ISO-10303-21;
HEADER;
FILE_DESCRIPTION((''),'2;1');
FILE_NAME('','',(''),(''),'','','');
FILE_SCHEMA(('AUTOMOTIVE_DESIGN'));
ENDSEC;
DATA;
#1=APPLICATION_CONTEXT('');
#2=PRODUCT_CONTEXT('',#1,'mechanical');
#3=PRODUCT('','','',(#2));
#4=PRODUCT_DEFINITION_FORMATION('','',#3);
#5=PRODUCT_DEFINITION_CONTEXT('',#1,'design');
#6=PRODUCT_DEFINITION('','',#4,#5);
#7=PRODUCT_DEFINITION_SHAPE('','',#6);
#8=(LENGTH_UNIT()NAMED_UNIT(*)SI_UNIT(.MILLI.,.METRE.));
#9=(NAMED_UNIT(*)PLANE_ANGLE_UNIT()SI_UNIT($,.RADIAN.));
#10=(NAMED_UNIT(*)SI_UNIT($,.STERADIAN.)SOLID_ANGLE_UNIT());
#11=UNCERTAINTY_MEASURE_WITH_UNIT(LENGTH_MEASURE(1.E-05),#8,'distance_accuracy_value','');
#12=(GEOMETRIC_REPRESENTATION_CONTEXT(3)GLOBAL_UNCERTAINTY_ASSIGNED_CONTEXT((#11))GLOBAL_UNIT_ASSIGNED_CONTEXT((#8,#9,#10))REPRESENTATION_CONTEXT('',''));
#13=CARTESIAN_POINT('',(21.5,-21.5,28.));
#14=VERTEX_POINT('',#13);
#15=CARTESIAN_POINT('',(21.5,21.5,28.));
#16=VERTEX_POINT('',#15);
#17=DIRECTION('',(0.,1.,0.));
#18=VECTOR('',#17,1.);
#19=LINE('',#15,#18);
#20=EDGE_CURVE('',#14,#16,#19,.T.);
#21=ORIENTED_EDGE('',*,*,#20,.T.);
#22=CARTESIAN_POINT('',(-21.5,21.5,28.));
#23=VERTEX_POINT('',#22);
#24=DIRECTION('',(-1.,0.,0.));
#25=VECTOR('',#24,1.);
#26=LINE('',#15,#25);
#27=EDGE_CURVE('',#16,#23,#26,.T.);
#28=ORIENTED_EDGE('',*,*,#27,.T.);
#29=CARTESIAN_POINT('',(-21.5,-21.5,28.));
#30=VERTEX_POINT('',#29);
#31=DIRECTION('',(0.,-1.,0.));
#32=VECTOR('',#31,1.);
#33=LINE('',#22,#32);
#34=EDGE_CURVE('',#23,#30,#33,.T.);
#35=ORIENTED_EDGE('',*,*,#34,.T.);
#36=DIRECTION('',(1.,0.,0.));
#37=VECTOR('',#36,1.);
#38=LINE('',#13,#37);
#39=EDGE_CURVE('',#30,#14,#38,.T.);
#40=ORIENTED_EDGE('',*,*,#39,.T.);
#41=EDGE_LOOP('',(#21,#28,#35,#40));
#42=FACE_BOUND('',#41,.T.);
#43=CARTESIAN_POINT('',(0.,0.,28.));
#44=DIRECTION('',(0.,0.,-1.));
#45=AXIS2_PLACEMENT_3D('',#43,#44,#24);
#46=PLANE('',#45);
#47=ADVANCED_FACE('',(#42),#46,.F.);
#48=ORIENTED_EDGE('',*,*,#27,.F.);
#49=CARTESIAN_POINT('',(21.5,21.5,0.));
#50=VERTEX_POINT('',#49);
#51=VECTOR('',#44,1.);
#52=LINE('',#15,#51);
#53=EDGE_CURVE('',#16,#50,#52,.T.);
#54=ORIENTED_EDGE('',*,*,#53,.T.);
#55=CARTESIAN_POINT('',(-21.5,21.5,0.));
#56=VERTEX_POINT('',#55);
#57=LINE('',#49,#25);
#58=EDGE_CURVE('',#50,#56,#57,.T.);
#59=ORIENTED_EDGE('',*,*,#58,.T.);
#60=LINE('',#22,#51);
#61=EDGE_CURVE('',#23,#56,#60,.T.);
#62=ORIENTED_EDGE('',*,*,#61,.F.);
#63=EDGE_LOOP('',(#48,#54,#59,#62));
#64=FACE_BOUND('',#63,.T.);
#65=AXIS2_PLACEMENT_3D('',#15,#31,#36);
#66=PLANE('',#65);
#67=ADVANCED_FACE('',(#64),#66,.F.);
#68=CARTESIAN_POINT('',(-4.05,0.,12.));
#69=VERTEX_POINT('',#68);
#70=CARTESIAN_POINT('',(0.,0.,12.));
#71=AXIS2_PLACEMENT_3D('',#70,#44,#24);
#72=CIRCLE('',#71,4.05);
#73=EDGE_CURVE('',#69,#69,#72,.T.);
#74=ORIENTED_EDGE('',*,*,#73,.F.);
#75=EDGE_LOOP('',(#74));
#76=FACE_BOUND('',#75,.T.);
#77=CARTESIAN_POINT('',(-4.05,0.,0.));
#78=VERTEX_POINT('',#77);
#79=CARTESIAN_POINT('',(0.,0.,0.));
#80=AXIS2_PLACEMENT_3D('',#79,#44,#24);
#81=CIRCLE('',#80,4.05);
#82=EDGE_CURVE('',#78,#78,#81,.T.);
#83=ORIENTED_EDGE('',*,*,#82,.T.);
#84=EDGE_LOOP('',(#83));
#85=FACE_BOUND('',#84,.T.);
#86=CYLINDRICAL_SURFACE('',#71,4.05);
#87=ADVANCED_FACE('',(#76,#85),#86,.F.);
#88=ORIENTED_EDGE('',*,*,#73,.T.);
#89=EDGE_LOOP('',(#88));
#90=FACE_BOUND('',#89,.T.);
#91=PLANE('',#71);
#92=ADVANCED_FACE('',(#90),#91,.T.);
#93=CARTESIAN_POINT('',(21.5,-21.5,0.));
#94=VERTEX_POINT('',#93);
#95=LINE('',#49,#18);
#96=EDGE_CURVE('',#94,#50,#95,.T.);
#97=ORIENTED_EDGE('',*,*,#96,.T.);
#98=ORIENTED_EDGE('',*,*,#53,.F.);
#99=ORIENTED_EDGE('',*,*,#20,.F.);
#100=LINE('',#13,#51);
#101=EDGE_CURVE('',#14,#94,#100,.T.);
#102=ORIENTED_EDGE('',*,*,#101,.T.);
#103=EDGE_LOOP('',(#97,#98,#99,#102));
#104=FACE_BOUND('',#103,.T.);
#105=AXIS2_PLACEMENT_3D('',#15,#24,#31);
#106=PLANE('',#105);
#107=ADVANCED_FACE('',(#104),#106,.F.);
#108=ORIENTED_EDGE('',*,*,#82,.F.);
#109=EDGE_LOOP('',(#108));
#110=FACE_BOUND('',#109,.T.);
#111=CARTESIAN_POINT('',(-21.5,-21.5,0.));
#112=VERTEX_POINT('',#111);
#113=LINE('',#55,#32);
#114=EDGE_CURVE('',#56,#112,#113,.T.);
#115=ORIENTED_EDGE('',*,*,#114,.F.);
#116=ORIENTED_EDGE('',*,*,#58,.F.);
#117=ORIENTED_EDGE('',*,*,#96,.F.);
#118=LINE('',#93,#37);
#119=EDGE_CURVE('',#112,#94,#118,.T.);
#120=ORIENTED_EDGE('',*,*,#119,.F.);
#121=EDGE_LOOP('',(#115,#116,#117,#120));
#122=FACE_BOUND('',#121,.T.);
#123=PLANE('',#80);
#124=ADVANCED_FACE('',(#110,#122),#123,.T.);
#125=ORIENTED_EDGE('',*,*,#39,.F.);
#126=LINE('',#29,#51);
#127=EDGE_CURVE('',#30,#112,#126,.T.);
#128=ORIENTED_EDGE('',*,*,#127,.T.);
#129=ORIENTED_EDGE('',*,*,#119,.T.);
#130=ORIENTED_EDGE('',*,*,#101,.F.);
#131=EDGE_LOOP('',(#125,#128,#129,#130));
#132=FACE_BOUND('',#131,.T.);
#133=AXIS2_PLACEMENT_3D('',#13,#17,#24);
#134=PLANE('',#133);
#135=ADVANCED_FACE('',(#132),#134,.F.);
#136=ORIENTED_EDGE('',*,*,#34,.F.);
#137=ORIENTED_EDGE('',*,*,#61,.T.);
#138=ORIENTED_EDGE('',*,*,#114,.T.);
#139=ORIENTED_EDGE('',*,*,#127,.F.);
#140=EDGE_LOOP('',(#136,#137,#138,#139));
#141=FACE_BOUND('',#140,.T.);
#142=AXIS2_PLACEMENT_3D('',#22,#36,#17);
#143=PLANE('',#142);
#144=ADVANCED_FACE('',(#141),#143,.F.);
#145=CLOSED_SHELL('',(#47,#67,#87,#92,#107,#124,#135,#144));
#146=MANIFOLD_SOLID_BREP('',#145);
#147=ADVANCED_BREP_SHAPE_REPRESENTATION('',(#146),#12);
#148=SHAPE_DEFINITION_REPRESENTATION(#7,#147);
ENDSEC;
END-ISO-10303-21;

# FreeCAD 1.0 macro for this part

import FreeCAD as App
import Part
import Sketcher
Q = App.Units.Quantity


def add_polygon(sketch, points):
    """Adds a closed chain of lines whose ends are joined by coincident constraints."""
    first, n = sketch.GeometryCount, len(points)
    for a, b in zip(points, points[1:] + points[:1]):
        sketch.addGeometry(Part.LineSegment(App.Vector(*a, 0), App.Vector(*b, 0)), False)
    for i in range(n):
        sketch.addConstraint(Sketcher.Constraint("Coincident", first + i, 2, first + (i + 1) % n, 1))

doc = App.newDocument("Part")
body = doc.addObject("PartDesign::Body", "Body")

# Sketch on XY plane
sketch1 = doc.addObject("Sketcher::SketchObject", "Sketch")
body.addObject(sketch1)
sketch1.AttachmentSupport = (doc.XY_Plane, [""])
sketch1.MapMode = "FlatFace"
add_polygon(sketch1, [(-21.5, 21.5), (-21.5, -21.5), (21.5, -21.5), (21.5, 21.5)])  # lines 0-3
sketch1.addConstraint(Sketcher.Constraint("Vertical", 0))
sketch1.addConstraint(Sketcher.Constraint("Horizontal", 1))
sketch1.addConstraint(Sketcher.Constraint("Vertical", 2))
sketch1.addConstraint(Sketcher.Constraint("Horizontal", 3))
sketch1.addConstraint(Sketcher.Constraint("Symmetric", 0, 2, 2, 2, -1, 1))
sketch1.addConstraint(Sketcher.Constraint("Equal", 3, 0))
sketch1.addConstraint(Sketcher.Constraint("DistanceX", 1, 1, 1, 2, Q("43 mm")))
pad1 = doc.addObject("PartDesign::Pad", "Pad")
body.addObject(pad1)
pad1.Profile = sketch1
pad1.Length = 28

# Sketch on XY plane
sketch2 = doc.addObject("Sketcher::SketchObject", "Sketch001")
body.addObject(sketch2)
sketch2.AttachmentSupport = (doc.XY_Plane, [""])
sketch2.MapMode = "FlatFace"
sketch2.addGeometry(Part.Circle(App.Vector(0, 0, 0), App.Vector(0, 0, 1), 4.05), False)
sketch2.addConstraint(Sketcher.Constraint("Coincident", 0, 3, -1, 1))
sketch2.addConstraint(Sketcher.Constraint("Diameter", 0, Q("8.1 mm")))
pocket1 = doc.addObject("PartDesign::Pocket", "Pocket")
body.addObject(pocket1)
pocket1.Profile = sketch2
pocket1.Length = 12
pocket1.Reversed = True

doc.recompute()
